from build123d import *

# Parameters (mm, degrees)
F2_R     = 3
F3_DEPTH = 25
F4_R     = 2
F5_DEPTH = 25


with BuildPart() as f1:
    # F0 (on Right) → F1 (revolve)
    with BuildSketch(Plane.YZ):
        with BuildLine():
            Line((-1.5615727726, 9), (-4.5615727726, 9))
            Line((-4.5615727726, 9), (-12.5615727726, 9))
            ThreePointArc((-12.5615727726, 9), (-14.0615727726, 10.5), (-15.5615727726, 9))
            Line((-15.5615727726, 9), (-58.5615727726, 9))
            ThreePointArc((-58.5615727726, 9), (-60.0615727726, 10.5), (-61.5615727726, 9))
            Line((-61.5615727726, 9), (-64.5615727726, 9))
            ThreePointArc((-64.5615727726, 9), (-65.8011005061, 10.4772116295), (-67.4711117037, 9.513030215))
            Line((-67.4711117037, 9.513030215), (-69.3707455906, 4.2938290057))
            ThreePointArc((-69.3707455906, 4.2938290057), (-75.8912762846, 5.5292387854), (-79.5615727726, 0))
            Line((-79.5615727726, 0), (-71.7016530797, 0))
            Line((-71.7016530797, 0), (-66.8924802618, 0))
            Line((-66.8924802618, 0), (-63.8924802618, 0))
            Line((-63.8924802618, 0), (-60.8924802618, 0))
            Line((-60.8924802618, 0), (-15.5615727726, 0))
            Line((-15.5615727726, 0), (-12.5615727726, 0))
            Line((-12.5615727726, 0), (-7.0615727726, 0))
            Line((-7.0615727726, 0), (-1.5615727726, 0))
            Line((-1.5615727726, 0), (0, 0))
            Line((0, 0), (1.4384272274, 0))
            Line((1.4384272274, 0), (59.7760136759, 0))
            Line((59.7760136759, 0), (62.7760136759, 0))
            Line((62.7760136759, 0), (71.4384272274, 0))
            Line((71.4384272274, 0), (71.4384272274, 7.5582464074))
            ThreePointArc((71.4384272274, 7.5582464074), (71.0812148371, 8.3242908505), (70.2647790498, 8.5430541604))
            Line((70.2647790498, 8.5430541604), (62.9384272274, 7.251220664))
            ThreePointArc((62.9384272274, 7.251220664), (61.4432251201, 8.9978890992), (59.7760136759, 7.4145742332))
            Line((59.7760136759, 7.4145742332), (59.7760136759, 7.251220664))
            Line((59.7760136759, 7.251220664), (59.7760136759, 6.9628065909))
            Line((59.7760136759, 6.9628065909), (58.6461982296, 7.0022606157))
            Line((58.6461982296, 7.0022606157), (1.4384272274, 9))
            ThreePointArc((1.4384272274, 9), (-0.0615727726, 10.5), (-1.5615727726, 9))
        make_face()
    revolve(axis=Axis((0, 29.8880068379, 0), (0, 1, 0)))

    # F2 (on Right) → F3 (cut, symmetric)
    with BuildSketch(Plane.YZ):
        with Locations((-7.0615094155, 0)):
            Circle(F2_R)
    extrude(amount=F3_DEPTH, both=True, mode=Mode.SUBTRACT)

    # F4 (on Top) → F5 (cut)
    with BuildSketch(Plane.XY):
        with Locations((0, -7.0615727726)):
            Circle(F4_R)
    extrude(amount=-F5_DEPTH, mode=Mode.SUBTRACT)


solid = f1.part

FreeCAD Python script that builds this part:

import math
import FreeCAD as App
import Part
import Sketcher

V = App.Vector
Q = App.Units.Quantity

doc = App.newDocument("Part")
body = doc.addObject("PartDesign::Body", "Body")

sketch1 = body.newObject("Sketcher::SketchObject", "Sketch")
sketch1.AttachmentSupport = (doc.getObject("YZ_Plane"), [""])
sketch1.MapMode = "FlatFace"
sketch1.addGeometry([
    Part.LineSegment(V(-1.56, 9, 0), V(-12.56, 9, 0)),
    Part.ArcOfCircle(Part.Circle(V(-14.06, 9, 0), V(0, 0, 1), 1.5), math.radians(0), math.radians(180)),
    Part.LineSegment(V(-15.56, 9, 0), V(-58.56, 9, 0)),
    Part.ArcOfCircle(Part.Circle(V(-60.06, 9, 0), V(0, 0, 1), 1.5), math.radians(0), math.radians(180)),
    Part.LineSegment(V(-61.56, 9, 0), V(-64.56, 9, 0)),
    Part.ArcOfCircle(Part.Circle(V(-66.06, 9, 0), V(0, 0, 1), 1.5), math.radians(0), math.radians(160)),
    Part.LineSegment(V(-67.47, 9.51, 0), V(-69.37, 4.29, 0)),
    Part.ArcOfCircle(Part.Circle(V(-73.56, 0, 0), V(0, 0, 1), 6), math.radians(46), math.radians(180)),
    Part.LineSegment(V(-79.56, 0, 0), V(71.44, 0, 0)),
    Part.LineSegment(V(71.44, 0, 0), V(71.44, 7.56, 0)),
    Part.ArcOfCircle(Part.Circle(V(70.44, 7.56, 0), V(0, 0, 1), 1), math.radians(0), math.radians(100)),
    Part.LineSegment(V(70.26, 8.54, 0), V(62.94, 7.25, 0)),
    Part.ArcOfCircle(Part.Circle(V(61.36, 7.41, 0), V(0, 0, 1), 1.59), math.radians(-6), math.radians(180)),
    Part.LineSegment(V(59.78, 7.41, 0), V(59.78, 6.96, 0)),
    Part.LineSegment(V(59.78, 6.96, 0), V(58.65, 7, 0)),
    Part.LineSegment(V(58.65, 7, 0), V(1.44, 9, 0)),
    Part.ArcOfCircle(Part.Circle(V(-0.06, 9, 0), V(0, 0, 1), 1.5), math.radians(0), math.radians(180)),
], False)
sketch1.addConstraint([
    Sketcher.Constraint("Coincident", 0, 2, 1, 1),
    Sketcher.Constraint("Coincident", 1, 2, 2, 1),
    Sketcher.Constraint("Coincident", 2, 2, 3, 1),
    Sketcher.Constraint("Coincident", 3, 2, 4, 1),
    Sketcher.Constraint("Coincident", 4, 2, 5, 1),
    Sketcher.Constraint("Tangent", 5, 2, 6, 1),
    Sketcher.Constraint("Coincident", 6, 2, 7, 1),
    Sketcher.Constraint("Coincident", 7, 2, 8, 1),
    Sketcher.Constraint("Coincident", 8, 2, 9, 1),
    Sketcher.Constraint("Tangent", 9, 2, 10, 1),
    Sketcher.Constraint("Tangent", 10, 2, 11, 1),
    Sketcher.Constraint("Coincident", 11, 2, 12, 1),
    Sketcher.Constraint("Tangent", 12, 2, 13, 1),
    Sketcher.Constraint("Coincident", 13, 2, 14, 1),
    Sketcher.Constraint("Coincident", 14, 2, 15, 1),
    Sketcher.Constraint("Coincident", 15, 2, 16, 1),
    Sketcher.Constraint("Coincident", 16, 2, 0, 1),
    Sketcher.Constraint("Horizontal", 0),
    Sketcher.Constraint("Horizontal", 2),
    Sketcher.Constraint("Horizontal", 4),
    Sketcher.Constraint("Horizontal", 8),
    Sketcher.Constraint("Vertical", 9),
    Sketcher.Constraint("Vertical", 13),
    Sketcher.Constraint("Equal", 1, 3),
    Sketcher.Constraint("Equal", 3, 5),
    Sketcher.Constraint("Equal", 5, 16),
    Sketcher.Constraint("PointOnObject", 7, 3, -1),
    Sketcher.Constraint("PointOnObject", 7, 2, -1),
    Sketcher.Constraint("Parallel", 14, 15),
    Sketcher.Constraint("Horizontal", 1, 3, 3, 3),
    Sketcher.Constraint("Horizontal", 3, 3, 5, 3),
    Sketcher.Constraint("Horizontal", 5, 3, 16, 3),
    Sketcher.Constraint("Horizontal", 16, 3, 0, 2),
    Sketcher.Constraint("Horizontal", 0, 2, 1, 2),
    Sketcher.Constraint("Horizontal", 2, 2, 3, 2),
    Sketcher.Constraint("Horizontal", 4, 2, 15, 2),
    Sketcher.Constraint("Radius", 7, 6.0),
    Sketcher.Constraint("Radius", 10, 1.0),
    Sketcher.Constraint("Radius", 1, 1.5),
    Sketcher.Constraint("DistanceX", 0, 2, 0, 1, 11.0),
    Sketcher.Constraint("DistanceX", 2, 2, 2, 1, 43.0),
    Sketcher.Constraint("DistanceX", 4, 2, 4, 1, 3.0),
    Sketcher.Constraint("DistanceX", 8, 1, 8, 2, 151.0),
    Sketcher.Constraint("Angle", 6, Q("-110 deg")),
    Sketcher.Constraint("Angle", 11, Q("-170 deg")),
    Sketcher.Constraint("Angle", 14, Q("178 deg")),
    Sketcher.Constraint("DistanceY", -1, 1, 1, 3, 9.0),
    Sketcher.Constraint("DistanceX", 7, 3, 0, 2, 61.0),
    Sketcher.Constraint("DistanceX", 11, 2, 10, 3, 7.5),
    Sketcher.Constraint("Radius", 12, 1.585426),
    Sketcher.Constraint("DistanceX", -1, 1, 14, 2, 58.646198),
    Sketcher.Constraint("Distance", 15, 57.242642),
    Sketcher.Constraint("DistanceY", 9, 1, 9, 2, 7.558246),
    Sketcher.Constraint("DistanceY", 13, 2, 13, 1, 0.451768),
])
revolution = body.newObject("PartDesign::Revolution", "Revolution")
revolution.Profile = sketch1
revolution.ReferenceAxis = (sketch1, ["H_Axis"])
revolution.Angle = 360

sketch2 = body.newObject("Sketcher::SketchObject", "Sketch001")
sketch2.AttachmentSupport = (doc.getObject("YZ_Plane"), [""])
sketch2.MapMode = "FlatFace"
sketch2.addGeometry(Part.Circle(V(-7.1, 0, 0), V(0, 0, 1), 3), False)
sketch2.addConstraint([
    Sketcher.Constraint("PointOnObject", 0, 3, -1),
    Sketcher.Constraint("Diameter", 0, 6.0),
    Sketcher.Constraint("DistanceX", 0, 3, -1, 1, 7.061509),
])
pocket1 = body.newObject("PartDesign::Pocket", "Pocket")
pocket1.Profile = sketch2
pocket1.Length = 50
pocket1.Midplane = True

sketch3 = body.newObject("Sketcher::SketchObject", "Sketch002")
sketch3.AttachmentSupport = (doc.getObject("XY_Plane"), [""])
sketch3.MapMode = "FlatFace"
sketch3.addGeometry(Part.Circle(V(0, -7.1, 0), V(0, 0, 1), 2), False)
sketch3.addConstraint([
    Sketcher.Constraint("PointOnObject", 0, 3, -2),
    Sketcher.Constraint("Diameter", 0, 4.0),
    Sketcher.Constraint("DistanceY", 0, 3, -1, 1, 7.061573),
])
pocket2 = body.newObject("PartDesign::Pocket", "Pocket001")
pocket2.Profile = sketch3
pocket2.Length = 25

doc.recompute()
